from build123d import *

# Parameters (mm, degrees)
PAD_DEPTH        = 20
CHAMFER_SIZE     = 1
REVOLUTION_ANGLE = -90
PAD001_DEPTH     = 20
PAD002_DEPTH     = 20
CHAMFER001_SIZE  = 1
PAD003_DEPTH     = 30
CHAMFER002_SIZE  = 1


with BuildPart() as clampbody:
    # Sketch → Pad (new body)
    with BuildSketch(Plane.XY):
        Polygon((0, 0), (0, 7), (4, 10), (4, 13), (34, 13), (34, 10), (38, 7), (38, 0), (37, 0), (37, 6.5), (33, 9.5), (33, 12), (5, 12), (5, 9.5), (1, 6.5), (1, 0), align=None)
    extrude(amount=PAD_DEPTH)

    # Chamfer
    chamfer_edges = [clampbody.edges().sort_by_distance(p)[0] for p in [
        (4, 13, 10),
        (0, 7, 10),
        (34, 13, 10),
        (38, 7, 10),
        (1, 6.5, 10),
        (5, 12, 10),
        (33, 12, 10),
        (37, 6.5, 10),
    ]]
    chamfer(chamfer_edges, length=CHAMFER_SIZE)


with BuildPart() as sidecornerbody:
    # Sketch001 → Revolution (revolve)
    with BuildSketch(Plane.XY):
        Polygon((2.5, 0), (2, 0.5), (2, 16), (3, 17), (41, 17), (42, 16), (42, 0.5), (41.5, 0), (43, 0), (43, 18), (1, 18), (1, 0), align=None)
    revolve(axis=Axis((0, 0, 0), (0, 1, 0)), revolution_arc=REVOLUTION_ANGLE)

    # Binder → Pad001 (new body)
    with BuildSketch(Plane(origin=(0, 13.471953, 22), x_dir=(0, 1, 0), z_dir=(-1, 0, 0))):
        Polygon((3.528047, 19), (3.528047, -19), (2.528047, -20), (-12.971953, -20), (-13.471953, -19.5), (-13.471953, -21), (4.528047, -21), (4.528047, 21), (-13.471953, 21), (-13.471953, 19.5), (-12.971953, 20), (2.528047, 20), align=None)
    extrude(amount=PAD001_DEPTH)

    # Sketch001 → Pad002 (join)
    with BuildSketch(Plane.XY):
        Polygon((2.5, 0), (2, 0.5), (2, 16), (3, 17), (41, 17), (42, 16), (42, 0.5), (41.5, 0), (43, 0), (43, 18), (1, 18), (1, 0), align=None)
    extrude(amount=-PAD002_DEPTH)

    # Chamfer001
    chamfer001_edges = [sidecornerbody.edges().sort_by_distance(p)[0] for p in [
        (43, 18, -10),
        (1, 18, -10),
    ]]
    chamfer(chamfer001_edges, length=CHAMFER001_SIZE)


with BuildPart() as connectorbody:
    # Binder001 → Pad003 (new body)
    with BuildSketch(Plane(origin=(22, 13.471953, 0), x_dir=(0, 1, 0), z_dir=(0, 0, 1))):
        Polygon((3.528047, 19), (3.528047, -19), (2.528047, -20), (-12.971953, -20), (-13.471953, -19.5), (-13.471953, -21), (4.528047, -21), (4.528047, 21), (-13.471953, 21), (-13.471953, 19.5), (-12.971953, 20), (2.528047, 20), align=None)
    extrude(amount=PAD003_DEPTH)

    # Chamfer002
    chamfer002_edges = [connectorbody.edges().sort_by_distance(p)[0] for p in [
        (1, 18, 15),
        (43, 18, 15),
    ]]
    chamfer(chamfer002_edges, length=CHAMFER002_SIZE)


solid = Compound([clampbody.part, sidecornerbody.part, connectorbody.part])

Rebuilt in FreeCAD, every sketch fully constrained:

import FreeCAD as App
import Part
import Sketcher

V = App.Vector
Q = App.Units.Quantity


def edges_at(feature, points):
    """Names of the edges that pass closest to the given points."""
    edges = feature.Shape.Edges
    near = lambda p: min(range(len(edges)), key=lambda i: edges[i].distToShape(Part.Vertex(*p))[0])
    return sorted({f"Edge{near(p) + 1}" for p in points})

doc = App.newDocument("Part")
body = doc.addObject("PartDesign::Body", "Body")

# Sketch on XY plane
sketch1 = doc.addObject("Sketcher::SketchObject", "Sketch")
body.addObject(sketch1)
sketch1.AttachmentSupport = (doc.XY_Plane, [""])
sketch1.MapMode = "FlatFace"
sketch1.addGeometry([
    Part.LineSegment(V(0, 7, 0), V(0, 0, 0)),  # 0
    Part.LineSegment(V(0, 0, 0), V(1, 0, 0)),  # 1
    Part.LineSegment(V(1, 0, 0), V(1, 6.5, 0)),  # 2
    Part.LineSegment(V(1, 6.5, 0), V(5, 9.5, 0)),  # 3
    Part.LineSegment(V(5, 9.5, 0), V(5, 12, 0)),  # 4
    Part.LineSegment(V(5, 12, 0), V(33, 12, 0)),  # 5
    Part.LineSegment(V(33, 12, 0), V(33, 9.5, 0)),  # 6
    Part.LineSegment(V(33, 9.5, 0), V(37, 6.5, 0)),  # 7
    Part.LineSegment(V(37, 6.5, 0), V(37, 0, 0)),  # 8
    Part.LineSegment(V(37, 0, 0), V(38, 0, 0)),  # 9
    Part.LineSegment(V(38, 0, 0), V(38, 7, 0)),  # 10
    Part.LineSegment(V(38, 7, 0), V(34, 10, 0)),  # 11
    Part.LineSegment(V(34, 10, 0), V(34, 13, 0)),  # 12
    Part.LineSegment(V(34, 13, 0), V(4, 13, 0)),  # 13
    Part.LineSegment(V(4, 13, 0), V(4, 10, 0)),  # 14
    Part.LineSegment(V(4, 10, 0), V(0, 7, 0)),  # 15
], False)
sketch1.addConstraint([
    Sketcher.Constraint("Coincident", 0, 2, 1, 1),
    Sketcher.Constraint("Coincident", 1, 2, 2, 1),
    Sketcher.Constraint("Coincident", 2, 2, 3, 1),
    Sketcher.Constraint("Coincident", 3, 2, 4, 1),
    Sketcher.Constraint("Coincident", 4, 2, 5, 1),
    Sketcher.Constraint("Coincident", 5, 2, 6, 1),
    Sketcher.Constraint("Coincident", 6, 2, 7, 1),
    Sketcher.Constraint("Coincident", 7, 2, 8, 1),
    Sketcher.Constraint("Coincident", 8, 2, 9, 1),
    Sketcher.Constraint("Coincident", 9, 2, 10, 1),
    Sketcher.Constraint("Coincident", 10, 2, 11, 1),
    Sketcher.Constraint("Coincident", 11, 2, 12, 1),
    Sketcher.Constraint("Coincident", 12, 2, 13, 1),
    Sketcher.Constraint("Coincident", 13, 2, 14, 1),
    Sketcher.Constraint("Coincident", 14, 2, 15, 1),
    Sketcher.Constraint("Coincident", 15, 2, 0, 1),
    Sketcher.Constraint("Vertical", 0),
    Sketcher.Constraint("Horizontal", 1),
    Sketcher.Constraint("Vertical", 2),
    Sketcher.Constraint("Vertical", 4),
    Sketcher.Constraint("Horizontal", 5),
    Sketcher.Constraint("Vertical", 6),
    Sketcher.Constraint("Vertical", 8),
    Sketcher.Constraint("Horizontal", 9),
    Sketcher.Constraint("Vertical", 10),
    Sketcher.Constraint("Vertical", 12),
    Sketcher.Constraint("Horizontal", 13),
    Sketcher.Constraint("Vertical", 14),
    Sketcher.Constraint("Coincident", 0, 2, -1, 1),
    Sketcher.Constraint("PointOnObject", 8, 2, -1),
    Sketcher.Constraint("Parallel", 7, 11),
    Sketcher.Constraint("Parallel", 3, 15),
    Sketcher.Constraint("Horizontal", 3, 2, 6, 2),
    Sketcher.Constraint("Horizontal", 2, 2, 7, 2),
    Sketcher.Constraint("Horizontal", 11, 2, 14, 2),
    Sketcher.Constraint("Horizontal", 10, 2, 15, 2),
    Sketcher.Constraint("Equal", 1, 9),
    Sketcher.Constraint("Equal", 3, 7),
    Sketcher.Constraint("Equal", 7, 11),
    Sketcher.Constraint("DistanceX", 1, 1, 1, 2, Q("1 mm")),
    Sketcher.Constraint("DistanceX", 5, 1, 5, 2, Q("28 mm")),
    Sketcher.Constraint("DistanceY", 0, 2, 0, 1, Q("7 mm")),
    Sketcher.Constraint("DistanceY", 12, 1, 12, 2, Q("3 mm")),
    Sketcher.Constraint("Distance", 3, Q("5 mm")),
    Sketcher.Constraint("DistanceY", 2, 1, 2, 2, Q("6.5 mm")),
    Sketcher.Constraint("DistanceY", 4, 1, 4, 2, Q("2.5 mm")),
    Sketcher.Constraint("DistanceX", -1, 1, 3, 2, Q("5 mm")),
])
pad1 = doc.addObject("PartDesign::Pad", "Pad")
body.addObject(pad1)
pad1.Profile = sketch1
pad1.Length = 20
doc.recompute()

chamfer = doc.addObject("PartDesign::Chamfer", "Chamfer")
body.addObject(chamfer)
chamfer.Base = (pad1, edges_at(pad1, [
    (4, 13, 10),
    (0, 7, 10),
    (34, 13, 10),
    (38, 7, 10),
    (1, 6.5, 10),
    (5, 12, 10),
    (33, 12, 10),
    (37, 6.5, 10),
]))
chamfer.Size = 1
body2 = doc.addObject("PartDesign::Body", "Body001")

# Sketch on XY plane
sketch2 = doc.addObject("Sketcher::SketchObject", "Sketch001")
body2.addObject(sketch2)
sketch2.AttachmentSupport = (doc.getObject("XY_Plane001"), [""])
sketch2.MapMode = "FlatFace"
sketch2.addGeometry([
    Part.LineSegment(V(2.5, 0, 0), V(2, 0.5, 0)),  # 0
    Part.LineSegment(V(2, 0.5, 0), V(2, 16, 0)),  # 1
    Part.LineSegment(V(2, 16, 0), V(3, 17, 0)),  # 2
    Part.LineSegment(V(3, 17, 0), V(41, 17, 0)),  # 3
    Part.LineSegment(V(41, 17, 0), V(42, 16, 0)),  # 4
    Part.LineSegment(V(42, 16, 0), V(42, 0.5, 0)),  # 5
    Part.LineSegment(V(42, 0.5, 0), V(41.5, 0, 0)),  # 6
    Part.LineSegment(V(41.5, 0, 0), V(43, 0, 0)),  # 7
    Part.LineSegment(V(43, 0, 0), V(43, 18, 0)),  # 8
    Part.LineSegment(V(43, 18, 0), V(1, 18, 0)),  # 9
    Part.LineSegment(V(1, 18, 0), V(1, 0, 0)),  # 10
    Part.LineSegment(V(1, 0, 0), V(2.5, 0, 0)),  # 11
], False)
sketch2.addConstraint([
    Sketcher.Constraint("Coincident", 0, 2, 1, 1),
    Sketcher.Constraint("Coincident", 1, 2, 2, 1),
    Sketcher.Constraint("Coincident", 2, 2, 3, 1),
    Sketcher.Constraint("Coincident", 3, 2, 4, 1),
    Sketcher.Constraint("Coincident", 4, 2, 5, 1),
    Sketcher.Constraint("Coincident", 5, 2, 6, 1),
    Sketcher.Constraint("Coincident", 6, 2, 7, 1),
    Sketcher.Constraint("Coincident", 7, 2, 8, 1),
    Sketcher.Constraint("Coincident", 8, 2, 9, 1),
    Sketcher.Constraint("Coincident", 9, 2, 10, 1),
    Sketcher.Constraint("Coincident", 10, 2, 11, 1),
    Sketcher.Constraint("Coincident", 11, 2, 0, 1),
    Sketcher.Constraint("Vertical", 1),
    Sketcher.Constraint("Horizontal", 3),
    Sketcher.Constraint("Vertical", 5),
    Sketcher.Constraint("Horizontal", 7),
    Sketcher.Constraint("Vertical", 8),
    Sketcher.Constraint("Horizontal", 9),
    Sketcher.Constraint("Vertical", 10),
    Sketcher.Constraint("Horizontal", 11),
    Sketcher.Constraint("PointOnObject", 6, 2, -1),
    Sketcher.Constraint("PointOnObject", 10, 2, -1),
    Sketcher.Constraint("Perpendicular", 0, 2),
    Sketcher.Constraint("Perpendicular", 2, 4),
    Sketcher.Constraint("Perpendicular", 4, 6),
    Sketcher.Constraint("Horizontal", 1, 2, 4, 2),
    Sketcher.Constraint("Horizontal", 0, 2, 5, 2),
    Sketcher.Constraint("Equal", 7, 11),
    Sketcher.Constraint("Equal", 2, 4),
    Sketcher.Constraint("DistanceX", 3, 1, 3, 2, Q("38 mm")),
    Sketcher.Constraint("DistanceX", 9, 2, 9, 1, Q("42 mm")),
    Sketcher.Constraint("DistanceY", 8, 1, 8, 2, Q("18 mm")),
    Sketcher.Constraint("DistanceX", 7, 1, 7, 2, Q("1.5 mm")),
    Sketcher.Constraint("DistanceY", 1, 1, 1, 2, Q("15.5 mm")),
    Sketcher.Constraint("DistanceX", -1, 1, 0, 2, Q("2 mm")),
    Sketcher.Constraint("DistanceY", -1, 1, 1, 2, Q("16 mm")),
])
revolution = doc.addObject("PartDesign::Revolution", "Revolution")
body2.addObject(revolution)
revolution.Profile = sketch2
revolution.ReferenceAxis = (sketch2, ["V_Axis"])
revolution.Angle = 90
revolution.Reversed = True

# Sketch on YZ plane
sketch3 = doc.addObject("Sketcher::SketchObject", "Sketch002")
body2.addObject(sketch3)
sketch3.AttachmentSupport = (doc.getObject("YZ_Plane001"), [""])
sketch3.MapMode = "FlatFace"
sketch3.addGeometry([
    Part.LineSegment(V(17, 3, 0), V(17, 41, 0)),  # 0
    Part.LineSegment(V(17, 41, 0), V(16, 42, 0)),  # 1
    Part.LineSegment(V(16, 42, 0), V(0.5, 42, 0)),  # 2
    Part.LineSegment(V(0.5, 42, 0), V(0, 41.5, 0)),  # 3
    Part.LineSegment(V(0, 41.5, 0), V(0, 43, 0)),  # 4
    Part.LineSegment(V(0, 43, 0), V(18, 43, 0)),  # 5
    Part.LineSegment(V(18, 43, 0), V(18, 1, 0)),  # 6
    Part.LineSegment(V(18, 1, 0), V(0, 1, 0)),  # 7
    Part.LineSegment(V(0, 1, 0), V(0, 2.5, 0)),  # 8
    Part.LineSegment(V(0, 2.5, 0), V(0.5, 2, 0)),  # 9
    Part.LineSegment(V(0.5, 2, 0), V(16, 2, 0)),  # 10
    Part.LineSegment(V(16, 2, 0), V(17, 3, 0)),  # 11
], False)
sketch3.addConstraint([
    Sketcher.Constraint("Coincident", 0, 2, 1, 1),
    Sketcher.Constraint("Coincident", 1, 2, 2, 1),
    Sketcher.Constraint("Coincident", 2, 2, 3, 1),
    Sketcher.Constraint("Coincident", 3, 2, 4, 1),
    Sketcher.Constraint("Coincident", 4, 2, 5, 1),
    Sketcher.Constraint("Coincident", 5, 2, 6, 1),
    Sketcher.Constraint("Coincident", 6, 2, 7, 1),
    Sketcher.Constraint("Coincident", 7, 2, 8, 1),
    Sketcher.Constraint("Coincident", 8, 2, 9, 1),
    Sketcher.Constraint("Coincident", 9, 2, 10, 1),
    Sketcher.Constraint("Coincident", 10, 2, 11, 1),
    Sketcher.Constraint("Coincident", 11, 2, 0, 1),
    Sketcher.Constraint("Vertical", 0),
    Sketcher.Constraint("Horizontal", 2),
    Sketcher.Constraint("Vertical", 4),
    Sketcher.Constraint("Horizontal", 5),
    Sketcher.Constraint("Vertical", 6),
    Sketcher.Constraint("Horizontal", 7),
    Sketcher.Constraint("Vertical", 8),
    Sketcher.Constraint("Horizontal", 10),
    Sketcher.Constraint("PointOnObject", 3, 2, -2),
    Sketcher.Constraint("PointOnObject", 7, 2, -2),
    Sketcher.Constraint("Perpendicular", 1, 3),
    Sketcher.Constraint("Perpendicular", 3, 9),
    Sketcher.Constraint("Perpendicular", 9, 11),
    Sketcher.Constraint("Vertical", 2, 2, 9, 2),
    Sketcher.Constraint("Vertical", 1, 2, 10, 2),
    Sketcher.Constraint("Equal", 4, 8),
    Sketcher.Constraint("Equal", 3, 9),
    Sketcher.Constraint("DistanceX", 5, 1, 5, 2, Q("18 mm")),
    Sketcher.Constraint("DistanceY", 0, 1, 0, 2, Q("38 mm")),
    Sketcher.Constraint("DistanceY", 6, 2, 6, 1, Q("42 mm")),
    Sketcher.Constraint("DistanceX", 2, 2, 2, 1, Q("15.5 mm")),
    Sketcher.Constraint("DistanceY", 4, 1, 4, 2, Q("1.5 mm")),
    Sketcher.Constraint("DistanceX", -1, 1, 0, 2, Q("17 mm")),
    Sketcher.Constraint("DistanceY", -1, 1, 0, 2, Q("41 mm")),
])
pad2 = doc.addObject("PartDesign::Pad", "Pad001")
body2.addObject(pad2)
pad2.Profile = sketch3
pad2.Length = 20
pad2.Reversed = True

# Sketch on XY plane
sketch4 = doc.addObject("Sketcher::SketchObject", "Sketch003")
body2.addObject(sketch4)
sketch4.AttachmentSupport = (doc.getObject("XY_Plane001"), [""])
sketch4.MapMode = "FlatFace"
sketch4.addGeometry([
    Part.LineSegment(V(2.5, 0, 0), V(2, 0.5, 0)),  # 0
    Part.LineSegment(V(2, 0.5, 0), V(2, 16, 0)),  # 1
    Part.LineSegment(V(2, 16, 0), V(3, 17, 0)),  # 2
    Part.LineSegment(V(3, 17, 0), V(41, 17, 0)),  # 3
    Part.LineSegment(V(41, 17, 0), V(42, 16, 0)),  # 4
    Part.LineSegment(V(42, 16, 0), V(42, 0.5, 0)),  # 5
    Part.LineSegment(V(42, 0.5, 0), V(41.5, 0, 0)),  # 6
    Part.LineSegment(V(41.5, 0, 0), V(43, 0, 0)),  # 7
    Part.LineSegment(V(43, 0, 0), V(43, 18, 0)),  # 8
    Part.LineSegment(V(43, 18, 0), V(1, 18, 0)),  # 9
    Part.LineSegment(V(1, 18, 0), V(1, 0, 0)),  # 10
    Part.LineSegment(V(1, 0, 0), V(2.5, 0, 0)),  # 11
], False)
sketch4.addConstraint([
    Sketcher.Constraint("Coincident", 0, 2, 1, 1),
    Sketcher.Constraint("Coincident", 1, 2, 2, 1),
    Sketcher.Constraint("Coincident", 2, 2, 3, 1),
    Sketcher.Constraint("Coincident", 3, 2, 4, 1),
    Sketcher.Constraint("Coincident", 4, 2, 5, 1),
    Sketcher.Constraint("Coincident", 5, 2, 6, 1),
    Sketcher.Constraint("Coincident", 6, 2, 7, 1),
    Sketcher.Constraint("Coincident", 7, 2, 8, 1),
    Sketcher.Constraint("Coincident", 8, 2, 9, 1),
    Sketcher.Constraint("Coincident", 9, 2, 10, 1),
    Sketcher.Constraint("Coincident", 10, 2, 11, 1),
    Sketcher.Constraint("Coincident", 11, 2, 0, 1),
    Sketcher.Constraint("Vertical", 1),
    Sketcher.Constraint("Horizontal", 3),
    Sketcher.Constraint("Vertical", 5),
    Sketcher.Constraint("Horizontal", 7),
    Sketcher.Constraint("Vertical", 8),
    Sketcher.Constraint("Horizontal", 9),
    Sketcher.Constraint("Vertical", 10),
    Sketcher.Constraint("Horizontal", 11),
    Sketcher.Constraint("PointOnObject", 6, 2, -1),
    Sketcher.Constraint("PointOnObject", 10, 2, -1),
    Sketcher.Constraint("Perpendicular", 0, 2),
    Sketcher.Constraint("Perpendicular", 2, 4),
    Sketcher.Constraint("Perpendicular", 4, 6),
    Sketcher.Constraint("Horizontal", 1, 2, 4, 2),
    Sketcher.Constraint("Horizontal", 0, 2, 5, 2),
    Sketcher.Constraint("Equal", 7, 11),
    Sketcher.Constraint("Equal", 2, 4),
    Sketcher.Constraint("DistanceX", 3, 1, 3, 2, Q("38 mm")),
    Sketcher.Constraint("DistanceX", 9, 2, 9, 1, Q("42 mm")),
    Sketcher.Constraint("DistanceY", 8, 1, 8, 2, Q("18 mm")),
    Sketcher.Constraint("DistanceX", 7, 1, 7, 2, Q("1.5 mm")),
    Sketcher.Constraint("DistanceY", 1, 1, 1, 2, Q("15.5 mm")),
    Sketcher.Constraint("DistanceX", -1, 1, 0, 2, Q("2 mm")),
    Sketcher.Constraint("DistanceY", -1, 1, 1, 2, Q("16 mm")),
])
pad3 = doc.addObject("PartDesign::Pad", "Pad002")
body2.addObject(pad3)
pad3.Profile = sketch4
pad3.Length = 20
pad3.Reversed = True
doc.recompute()

chamfer2 = doc.addObject("PartDesign::Chamfer", "Chamfer001")
body2.addObject(chamfer2)
chamfer2.Base = (pad3, edges_at(pad3, [(43, 18, -10), (1, 18, -10)]))
chamfer2.Size = 1
body3 = doc.addObject("PartDesign::Body", "Body002")

# Sketch on XY plane
sketch5 = doc.addObject("Sketcher::SketchObject", "Sketch004")
body3.addObject(sketch5)
sketch5.AttachmentSupport = (doc.getObject("XY_Plane002"), [""])
sketch5.MapMode = "FlatFace"
sketch5.addGeometry([
    Part.LineSegment(V(3, 17, 0), V(41, 17, 0)),  # 0
    Part.LineSegment(V(41, 17, 0), V(42, 16, 0)),  # 1
    Part.LineSegment(V(42, 16, 0), V(42, 0.5, 0)),  # 2
    Part.LineSegment(V(42, 0.5, 0), V(41.5, 0, 0)),  # 3
    Part.LineSegment(V(41.5, 0, 0), V(43, 0, 0)),  # 4
    Part.LineSegment(V(43, 0, 0), V(43, 18, 0)),  # 5
    Part.LineSegment(V(43, 18, 0), V(1, 18, 0)),  # 6
    Part.LineSegment(V(1, 18, 0), V(1, 0, 0)),  # 7
    Part.LineSegment(V(1, 0, 0), V(2.5, 0, 0)),  # 8
    Part.LineSegment(V(2.5, 0, 0), V(2, 0.5, 0)),  # 9
    Part.LineSegment(V(2, 0.5, 0), V(2, 16, 0)),  # 10
    Part.LineSegment(V(2, 16, 0), V(3, 17, 0)),  # 11
], False)
sketch5.addConstraint([
    Sketcher.Constraint("Coincident", 0, 2, 1, 1),
    Sketcher.Constraint("Coincident", 1, 2, 2, 1),
    Sketcher.Constraint("Coincident", 2, 2, 3, 1),
    Sketcher.Constraint("Coincident", 3, 2, 4, 1),
    Sketcher.Constraint("Coincident", 4, 2, 5, 1),
    Sketcher.Constraint("Coincident", 5, 2, 6, 1),
    Sketcher.Constraint("Coincident", 6, 2, 7, 1),
    Sketcher.Constraint("Coincident", 7, 2, 8, 1),
    Sketcher.Constraint("Coincident", 8, 2, 9, 1),
    Sketcher.Constraint("Coincident", 9, 2, 10, 1),
    Sketcher.Constraint("Coincident", 10, 2, 11, 1),
    Sketcher.Constraint("Coincident", 11, 2, 0, 1),
    Sketcher.Constraint("Horizontal", 0),
    Sketcher.Constraint("Vertical", 2),
    Sketcher.Constraint("Horizontal", 4),
    Sketcher.Constraint("Vertical", 5),
    Sketcher.Constraint("Horizontal", 6),
    Sketcher.Constraint("Vertical", 7),
    Sketcher.Constraint("Horizontal", 8),
    Sketcher.Constraint("Vertical", 10),
    Sketcher.Constraint("PointOnObject", 3, 2, -1),
    Sketcher.Constraint("PointOnObject", 7, 2, -1),
    Sketcher.Constraint("Perpendicular", 1, 3),
    Sketcher.Constraint("Perpendicular", 3, 9),
    Sketcher.Constraint("Perpendicular", 9, 11),
    Sketcher.Constraint("Horizontal", 2, 2, 9, 2),
    Sketcher.Constraint("Horizontal", 1, 2, 10, 2),
    Sketcher.Constraint("Equal", 4, 8),
    Sketcher.Constraint("Equal", 3, 9),
    Sketcher.Constraint("DistanceX", 0, 1, 0, 2, Q("38 mm")),
    Sketcher.Constraint("DistanceX", 6, 2, 6, 1, Q("42 mm")),
    Sketcher.Constraint("DistanceY", 5, 1, 5, 2, Q("18 mm")),
    Sketcher.Constraint("DistanceX", 4, 1, 4, 2, Q("1.5 mm")),
    Sketcher.Constraint("DistanceY", 2, 2, 2, 1, Q("15.5 mm")),
    Sketcher.Constraint("DistanceX", -1, 1, 0, 2, Q("41 mm")),
    Sketcher.Constraint("DistanceY", -1, 1, 0, 2, Q("17 mm")),
])
pad4 = doc.addObject("PartDesign::Pad", "Pad003")
body3.addObject(pad4)
pad4.Profile = sketch5
pad4.Length = 30
doc.recompute()

chamfer3 = doc.addObject("PartDesign::Chamfer", "Chamfer002")
body3.addObject(chamfer3)
chamfer3.Base = (pad4, edges_at(pad4, [(1, 18, 15), (43, 18, 15)]))
chamfer3.Size = 1

doc.recompute()
